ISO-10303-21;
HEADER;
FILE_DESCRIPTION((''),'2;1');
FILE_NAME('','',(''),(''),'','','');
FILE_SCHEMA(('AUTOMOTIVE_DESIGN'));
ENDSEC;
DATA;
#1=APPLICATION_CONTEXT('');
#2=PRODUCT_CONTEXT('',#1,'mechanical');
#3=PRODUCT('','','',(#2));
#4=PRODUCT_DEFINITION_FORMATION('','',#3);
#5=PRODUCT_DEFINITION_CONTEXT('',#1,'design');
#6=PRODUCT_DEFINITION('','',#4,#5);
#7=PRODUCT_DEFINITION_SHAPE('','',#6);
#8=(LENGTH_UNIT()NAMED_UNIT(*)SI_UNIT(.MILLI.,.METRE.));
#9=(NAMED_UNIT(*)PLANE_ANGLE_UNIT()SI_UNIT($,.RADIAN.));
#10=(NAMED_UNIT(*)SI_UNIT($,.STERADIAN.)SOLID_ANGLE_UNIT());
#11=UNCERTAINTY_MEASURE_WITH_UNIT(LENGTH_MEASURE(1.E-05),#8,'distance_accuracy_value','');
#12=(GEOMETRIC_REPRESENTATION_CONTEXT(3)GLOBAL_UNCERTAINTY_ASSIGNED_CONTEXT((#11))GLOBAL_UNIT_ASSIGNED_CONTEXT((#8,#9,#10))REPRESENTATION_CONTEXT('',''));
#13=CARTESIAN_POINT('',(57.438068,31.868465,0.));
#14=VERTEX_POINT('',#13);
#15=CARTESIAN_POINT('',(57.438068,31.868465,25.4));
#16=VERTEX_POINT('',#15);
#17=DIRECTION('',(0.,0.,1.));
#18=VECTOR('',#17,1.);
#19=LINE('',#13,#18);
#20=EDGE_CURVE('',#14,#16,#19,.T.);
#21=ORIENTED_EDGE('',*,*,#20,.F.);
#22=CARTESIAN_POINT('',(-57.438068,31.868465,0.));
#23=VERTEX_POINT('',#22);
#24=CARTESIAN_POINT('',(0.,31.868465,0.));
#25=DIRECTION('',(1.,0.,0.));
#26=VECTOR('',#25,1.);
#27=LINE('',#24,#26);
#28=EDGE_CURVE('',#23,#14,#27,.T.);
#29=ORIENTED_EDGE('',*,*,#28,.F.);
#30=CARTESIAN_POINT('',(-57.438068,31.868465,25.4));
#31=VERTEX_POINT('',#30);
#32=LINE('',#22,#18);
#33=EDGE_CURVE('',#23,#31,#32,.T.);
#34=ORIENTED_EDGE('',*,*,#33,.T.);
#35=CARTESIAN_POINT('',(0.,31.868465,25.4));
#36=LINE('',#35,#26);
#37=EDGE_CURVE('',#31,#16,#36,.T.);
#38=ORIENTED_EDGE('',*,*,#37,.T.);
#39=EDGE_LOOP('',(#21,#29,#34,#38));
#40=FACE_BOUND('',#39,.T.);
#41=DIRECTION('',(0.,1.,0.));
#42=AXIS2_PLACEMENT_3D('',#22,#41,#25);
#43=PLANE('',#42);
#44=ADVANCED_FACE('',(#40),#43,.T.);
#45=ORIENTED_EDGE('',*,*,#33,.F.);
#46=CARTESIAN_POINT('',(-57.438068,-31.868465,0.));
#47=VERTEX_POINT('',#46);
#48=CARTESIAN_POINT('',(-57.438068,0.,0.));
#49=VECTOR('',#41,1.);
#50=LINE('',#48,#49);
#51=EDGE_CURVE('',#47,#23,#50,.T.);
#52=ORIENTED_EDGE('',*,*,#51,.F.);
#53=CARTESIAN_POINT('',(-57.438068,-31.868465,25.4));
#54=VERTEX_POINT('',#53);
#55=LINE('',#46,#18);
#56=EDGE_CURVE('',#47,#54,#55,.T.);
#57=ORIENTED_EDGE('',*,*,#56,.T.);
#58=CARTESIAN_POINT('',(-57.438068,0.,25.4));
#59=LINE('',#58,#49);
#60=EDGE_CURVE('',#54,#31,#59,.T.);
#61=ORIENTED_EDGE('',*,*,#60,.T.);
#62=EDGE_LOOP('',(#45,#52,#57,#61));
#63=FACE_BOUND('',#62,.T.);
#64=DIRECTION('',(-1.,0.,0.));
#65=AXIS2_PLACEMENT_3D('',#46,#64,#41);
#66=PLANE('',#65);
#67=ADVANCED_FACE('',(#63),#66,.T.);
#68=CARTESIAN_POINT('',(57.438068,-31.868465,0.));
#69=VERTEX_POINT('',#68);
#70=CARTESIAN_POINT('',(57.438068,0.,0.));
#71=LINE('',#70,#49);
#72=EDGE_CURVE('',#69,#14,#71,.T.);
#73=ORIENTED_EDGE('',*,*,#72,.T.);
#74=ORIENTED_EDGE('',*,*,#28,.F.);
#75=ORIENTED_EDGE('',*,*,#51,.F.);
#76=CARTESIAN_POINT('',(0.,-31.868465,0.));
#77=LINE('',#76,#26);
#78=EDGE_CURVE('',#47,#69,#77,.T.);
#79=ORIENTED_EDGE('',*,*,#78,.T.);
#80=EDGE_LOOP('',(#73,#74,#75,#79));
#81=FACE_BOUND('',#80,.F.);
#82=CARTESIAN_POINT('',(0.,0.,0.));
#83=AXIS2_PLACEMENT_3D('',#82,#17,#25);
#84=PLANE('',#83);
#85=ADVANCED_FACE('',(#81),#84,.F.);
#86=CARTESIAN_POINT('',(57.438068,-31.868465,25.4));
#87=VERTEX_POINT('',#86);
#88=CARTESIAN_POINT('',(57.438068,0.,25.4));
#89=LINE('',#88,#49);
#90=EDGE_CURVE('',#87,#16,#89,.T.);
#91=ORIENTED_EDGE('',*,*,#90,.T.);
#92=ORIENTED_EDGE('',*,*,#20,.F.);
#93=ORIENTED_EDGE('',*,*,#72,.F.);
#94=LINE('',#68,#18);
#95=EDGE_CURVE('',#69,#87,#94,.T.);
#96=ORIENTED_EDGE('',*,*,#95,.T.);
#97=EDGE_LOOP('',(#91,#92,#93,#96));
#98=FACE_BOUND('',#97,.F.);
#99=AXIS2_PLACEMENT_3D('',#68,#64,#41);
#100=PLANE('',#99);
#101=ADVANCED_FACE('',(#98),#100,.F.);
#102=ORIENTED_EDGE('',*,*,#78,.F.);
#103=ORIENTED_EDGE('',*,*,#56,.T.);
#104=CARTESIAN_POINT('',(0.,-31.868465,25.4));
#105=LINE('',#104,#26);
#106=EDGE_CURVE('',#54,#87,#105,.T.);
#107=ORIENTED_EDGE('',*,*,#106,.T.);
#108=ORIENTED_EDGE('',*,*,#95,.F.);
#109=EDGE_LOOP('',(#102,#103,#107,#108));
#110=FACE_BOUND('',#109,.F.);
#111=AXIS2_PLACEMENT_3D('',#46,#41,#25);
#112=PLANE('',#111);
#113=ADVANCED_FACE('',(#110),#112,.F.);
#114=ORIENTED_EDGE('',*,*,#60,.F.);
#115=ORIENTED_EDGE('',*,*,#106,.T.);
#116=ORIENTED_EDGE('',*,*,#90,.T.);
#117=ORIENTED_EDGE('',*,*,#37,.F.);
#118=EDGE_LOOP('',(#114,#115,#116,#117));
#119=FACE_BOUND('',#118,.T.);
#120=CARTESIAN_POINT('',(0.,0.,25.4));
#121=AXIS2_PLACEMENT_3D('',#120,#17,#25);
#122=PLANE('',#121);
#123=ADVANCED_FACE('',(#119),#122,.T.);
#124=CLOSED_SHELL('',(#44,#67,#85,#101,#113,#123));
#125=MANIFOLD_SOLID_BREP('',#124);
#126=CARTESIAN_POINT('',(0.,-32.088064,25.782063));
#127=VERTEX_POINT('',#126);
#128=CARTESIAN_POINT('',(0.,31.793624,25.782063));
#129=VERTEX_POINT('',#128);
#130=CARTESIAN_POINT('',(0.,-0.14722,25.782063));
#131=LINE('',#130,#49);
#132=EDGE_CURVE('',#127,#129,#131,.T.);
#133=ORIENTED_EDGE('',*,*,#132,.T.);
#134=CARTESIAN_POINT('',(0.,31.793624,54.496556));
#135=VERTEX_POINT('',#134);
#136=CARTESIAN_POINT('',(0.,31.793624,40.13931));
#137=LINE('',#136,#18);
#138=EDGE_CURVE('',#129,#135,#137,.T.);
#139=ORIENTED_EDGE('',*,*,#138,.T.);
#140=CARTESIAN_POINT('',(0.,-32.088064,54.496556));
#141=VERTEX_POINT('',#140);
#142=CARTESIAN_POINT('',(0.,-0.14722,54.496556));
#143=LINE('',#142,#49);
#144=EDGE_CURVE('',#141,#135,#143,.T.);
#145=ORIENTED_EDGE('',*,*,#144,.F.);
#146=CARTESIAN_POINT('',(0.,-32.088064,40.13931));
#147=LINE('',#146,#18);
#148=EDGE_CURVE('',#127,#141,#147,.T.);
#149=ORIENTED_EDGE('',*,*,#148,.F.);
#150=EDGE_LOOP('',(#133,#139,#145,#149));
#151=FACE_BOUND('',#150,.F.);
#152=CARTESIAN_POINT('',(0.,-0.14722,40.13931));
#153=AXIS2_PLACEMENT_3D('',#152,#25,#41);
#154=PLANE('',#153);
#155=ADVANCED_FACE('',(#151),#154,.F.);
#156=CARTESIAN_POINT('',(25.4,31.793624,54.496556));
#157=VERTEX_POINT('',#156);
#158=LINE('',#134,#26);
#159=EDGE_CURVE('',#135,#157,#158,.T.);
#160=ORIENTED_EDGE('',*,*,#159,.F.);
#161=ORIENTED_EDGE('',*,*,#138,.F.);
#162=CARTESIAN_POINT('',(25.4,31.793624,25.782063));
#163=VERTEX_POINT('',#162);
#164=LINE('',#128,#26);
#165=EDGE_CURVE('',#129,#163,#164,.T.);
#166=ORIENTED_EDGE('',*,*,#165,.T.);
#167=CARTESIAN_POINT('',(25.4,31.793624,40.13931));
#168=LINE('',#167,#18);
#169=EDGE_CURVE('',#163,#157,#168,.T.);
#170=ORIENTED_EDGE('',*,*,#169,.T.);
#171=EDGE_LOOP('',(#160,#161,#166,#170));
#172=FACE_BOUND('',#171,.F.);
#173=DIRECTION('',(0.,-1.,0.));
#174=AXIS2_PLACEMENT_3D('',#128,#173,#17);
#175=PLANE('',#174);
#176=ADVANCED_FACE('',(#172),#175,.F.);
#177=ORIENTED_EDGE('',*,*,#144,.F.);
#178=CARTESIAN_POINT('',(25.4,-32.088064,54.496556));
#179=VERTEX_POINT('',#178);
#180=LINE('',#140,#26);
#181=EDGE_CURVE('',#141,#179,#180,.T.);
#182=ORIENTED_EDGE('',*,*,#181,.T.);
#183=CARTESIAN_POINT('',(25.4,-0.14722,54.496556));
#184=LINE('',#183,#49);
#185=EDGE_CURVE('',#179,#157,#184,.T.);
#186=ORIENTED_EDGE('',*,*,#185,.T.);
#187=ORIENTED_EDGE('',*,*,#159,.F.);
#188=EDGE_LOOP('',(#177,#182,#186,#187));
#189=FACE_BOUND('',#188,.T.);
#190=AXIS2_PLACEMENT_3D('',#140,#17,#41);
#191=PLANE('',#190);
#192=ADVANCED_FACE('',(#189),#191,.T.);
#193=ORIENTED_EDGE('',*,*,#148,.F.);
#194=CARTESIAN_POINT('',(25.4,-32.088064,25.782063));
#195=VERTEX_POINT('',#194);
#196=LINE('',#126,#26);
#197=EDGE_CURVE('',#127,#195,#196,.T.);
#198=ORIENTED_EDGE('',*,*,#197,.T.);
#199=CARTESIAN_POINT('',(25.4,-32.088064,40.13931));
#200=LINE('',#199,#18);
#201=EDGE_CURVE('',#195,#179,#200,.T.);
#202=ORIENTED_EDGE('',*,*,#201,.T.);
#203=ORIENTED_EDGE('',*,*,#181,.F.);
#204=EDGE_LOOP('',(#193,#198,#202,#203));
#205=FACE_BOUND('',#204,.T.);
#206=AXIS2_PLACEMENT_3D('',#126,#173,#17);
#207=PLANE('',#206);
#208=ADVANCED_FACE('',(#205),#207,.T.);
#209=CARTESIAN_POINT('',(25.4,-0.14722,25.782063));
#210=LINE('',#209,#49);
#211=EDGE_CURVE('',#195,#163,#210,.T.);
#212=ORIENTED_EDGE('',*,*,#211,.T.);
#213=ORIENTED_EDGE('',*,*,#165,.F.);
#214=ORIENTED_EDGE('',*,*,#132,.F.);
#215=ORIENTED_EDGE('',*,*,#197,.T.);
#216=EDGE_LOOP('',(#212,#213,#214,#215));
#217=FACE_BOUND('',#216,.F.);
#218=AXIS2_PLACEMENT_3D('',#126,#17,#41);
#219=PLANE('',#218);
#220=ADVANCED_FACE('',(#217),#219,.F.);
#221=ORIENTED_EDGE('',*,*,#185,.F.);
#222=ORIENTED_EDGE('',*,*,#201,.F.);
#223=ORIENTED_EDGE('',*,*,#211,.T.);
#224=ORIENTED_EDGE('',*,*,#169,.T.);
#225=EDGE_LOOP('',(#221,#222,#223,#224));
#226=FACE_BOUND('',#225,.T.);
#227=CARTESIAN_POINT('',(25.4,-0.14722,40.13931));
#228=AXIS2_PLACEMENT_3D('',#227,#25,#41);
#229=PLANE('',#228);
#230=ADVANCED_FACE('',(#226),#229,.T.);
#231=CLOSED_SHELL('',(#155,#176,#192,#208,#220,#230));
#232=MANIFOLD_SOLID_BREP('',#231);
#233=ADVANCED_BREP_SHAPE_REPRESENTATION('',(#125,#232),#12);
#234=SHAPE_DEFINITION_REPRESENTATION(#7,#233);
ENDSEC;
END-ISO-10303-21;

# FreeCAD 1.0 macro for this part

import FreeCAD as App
import Part
import Sketcher
Q = App.Units.Quantity

doc = App.newDocument("Part")
body = doc.addObject("PartDesign::Body", "Body")

# Sketch on XY plane
sketch1 = body.newObject("Sketcher::SketchObject", "Sketch")
sketch1.AttachmentSupport = (doc.getObject("XY_Plane"), [""])
sketch1.MapMode = "FlatFace"
sketch1.addGeometry([
    Part.LineSegment(App.Vector(-57, 32, 0), App.Vector(-57, -32, 0)),
    Part.LineSegment(App.Vector(-57, -32, 0), App.Vector(57, -32, 0)),
    Part.LineSegment(App.Vector(57, -32, 0), App.Vector(57, 32, 0)),
    Part.LineSegment(App.Vector(57, 32, 0), App.Vector(-57, 32, 0)),
], False)
sketch1.addConstraint([
    Sketcher.Constraint("Coincident", 0, 2, 1, 1),
    Sketcher.Constraint("Coincident", 1, 2, 2, 1),
    Sketcher.Constraint("Coincident", 2, 2, 3, 1),
    Sketcher.Constraint("Coincident", 3, 2, 0, 1),
    Sketcher.Constraint("Vertical", 0),
    Sketcher.Constraint("Horizontal", 1),
    Sketcher.Constraint("Vertical", 2),
    Sketcher.Constraint("Horizontal", 3),
    Sketcher.Constraint("Symmetric", 0, 2, 2, 2, -1, 1),
    Sketcher.Constraint("DistanceY", 0, 2, 0, 1, Q("63.73693 mm")),
    Sketcher.Constraint("DistanceX", 1, 1, 1, 2, Q("114.876136 mm")),
])
pad1 = body.newObject("PartDesign::Pad", "Pad")
pad1.Profile = sketch1
pad1.Length = Q("1 in")
body2 = doc.addObject("PartDesign::Body", "Body001")

# Sketch on YZ plane
sketch2 = body2.newObject("Sketcher::SketchObject", "Sketch001")
sketch2.AttachmentSupport = (doc.getObject("YZ_Plane001"), [""])
sketch2.MapMode = "FlatFace"
sketch2.addGeometry([
    Part.LineSegment(App.Vector(-32, 54, 0), App.Vector(-32, 26, 0)),
    Part.LineSegment(App.Vector(-32, 26, 0), App.Vector(32, 26, 0)),
    Part.LineSegment(App.Vector(32, 26, 0), App.Vector(32, 54, 0)),
    Part.LineSegment(App.Vector(32, 54, 0), App.Vector(-32, 54, 0)),
], False)
sketch2.addConstraint([
    Sketcher.Constraint("Coincident", 0, 2, 1, 1),
    Sketcher.Constraint("Coincident", 1, 2, 2, 1),
    Sketcher.Constraint("Coincident", 2, 2, 3, 1),
    Sketcher.Constraint("Coincident", 3, 2, 0, 1),
    Sketcher.Constraint("Vertical", 0),
    Sketcher.Constraint("Horizontal", 1),
    Sketcher.Constraint("Vertical", 2),
    Sketcher.Constraint("Horizontal", 3),
    Sketcher.Constraint("DistanceX", 1, 1, 1, 2, Q("63.881688 mm")),
    Sketcher.Constraint("DistanceY", 0, 2, 0, 1, Q("28.714493 mm")),
    Sketcher.Constraint("DistanceX", 0, 2, -1, 1, Q("32.088064 mm")),
    Sketcher.Constraint("DistanceY", -1, 1, 0, 2, Q("25.782063 mm")),
])
pad2 = body2.newObject("PartDesign::Pad", "Pad001")
pad2.Profile = sketch2
pad2.Length = Q("1 in")

doc.recompute()
